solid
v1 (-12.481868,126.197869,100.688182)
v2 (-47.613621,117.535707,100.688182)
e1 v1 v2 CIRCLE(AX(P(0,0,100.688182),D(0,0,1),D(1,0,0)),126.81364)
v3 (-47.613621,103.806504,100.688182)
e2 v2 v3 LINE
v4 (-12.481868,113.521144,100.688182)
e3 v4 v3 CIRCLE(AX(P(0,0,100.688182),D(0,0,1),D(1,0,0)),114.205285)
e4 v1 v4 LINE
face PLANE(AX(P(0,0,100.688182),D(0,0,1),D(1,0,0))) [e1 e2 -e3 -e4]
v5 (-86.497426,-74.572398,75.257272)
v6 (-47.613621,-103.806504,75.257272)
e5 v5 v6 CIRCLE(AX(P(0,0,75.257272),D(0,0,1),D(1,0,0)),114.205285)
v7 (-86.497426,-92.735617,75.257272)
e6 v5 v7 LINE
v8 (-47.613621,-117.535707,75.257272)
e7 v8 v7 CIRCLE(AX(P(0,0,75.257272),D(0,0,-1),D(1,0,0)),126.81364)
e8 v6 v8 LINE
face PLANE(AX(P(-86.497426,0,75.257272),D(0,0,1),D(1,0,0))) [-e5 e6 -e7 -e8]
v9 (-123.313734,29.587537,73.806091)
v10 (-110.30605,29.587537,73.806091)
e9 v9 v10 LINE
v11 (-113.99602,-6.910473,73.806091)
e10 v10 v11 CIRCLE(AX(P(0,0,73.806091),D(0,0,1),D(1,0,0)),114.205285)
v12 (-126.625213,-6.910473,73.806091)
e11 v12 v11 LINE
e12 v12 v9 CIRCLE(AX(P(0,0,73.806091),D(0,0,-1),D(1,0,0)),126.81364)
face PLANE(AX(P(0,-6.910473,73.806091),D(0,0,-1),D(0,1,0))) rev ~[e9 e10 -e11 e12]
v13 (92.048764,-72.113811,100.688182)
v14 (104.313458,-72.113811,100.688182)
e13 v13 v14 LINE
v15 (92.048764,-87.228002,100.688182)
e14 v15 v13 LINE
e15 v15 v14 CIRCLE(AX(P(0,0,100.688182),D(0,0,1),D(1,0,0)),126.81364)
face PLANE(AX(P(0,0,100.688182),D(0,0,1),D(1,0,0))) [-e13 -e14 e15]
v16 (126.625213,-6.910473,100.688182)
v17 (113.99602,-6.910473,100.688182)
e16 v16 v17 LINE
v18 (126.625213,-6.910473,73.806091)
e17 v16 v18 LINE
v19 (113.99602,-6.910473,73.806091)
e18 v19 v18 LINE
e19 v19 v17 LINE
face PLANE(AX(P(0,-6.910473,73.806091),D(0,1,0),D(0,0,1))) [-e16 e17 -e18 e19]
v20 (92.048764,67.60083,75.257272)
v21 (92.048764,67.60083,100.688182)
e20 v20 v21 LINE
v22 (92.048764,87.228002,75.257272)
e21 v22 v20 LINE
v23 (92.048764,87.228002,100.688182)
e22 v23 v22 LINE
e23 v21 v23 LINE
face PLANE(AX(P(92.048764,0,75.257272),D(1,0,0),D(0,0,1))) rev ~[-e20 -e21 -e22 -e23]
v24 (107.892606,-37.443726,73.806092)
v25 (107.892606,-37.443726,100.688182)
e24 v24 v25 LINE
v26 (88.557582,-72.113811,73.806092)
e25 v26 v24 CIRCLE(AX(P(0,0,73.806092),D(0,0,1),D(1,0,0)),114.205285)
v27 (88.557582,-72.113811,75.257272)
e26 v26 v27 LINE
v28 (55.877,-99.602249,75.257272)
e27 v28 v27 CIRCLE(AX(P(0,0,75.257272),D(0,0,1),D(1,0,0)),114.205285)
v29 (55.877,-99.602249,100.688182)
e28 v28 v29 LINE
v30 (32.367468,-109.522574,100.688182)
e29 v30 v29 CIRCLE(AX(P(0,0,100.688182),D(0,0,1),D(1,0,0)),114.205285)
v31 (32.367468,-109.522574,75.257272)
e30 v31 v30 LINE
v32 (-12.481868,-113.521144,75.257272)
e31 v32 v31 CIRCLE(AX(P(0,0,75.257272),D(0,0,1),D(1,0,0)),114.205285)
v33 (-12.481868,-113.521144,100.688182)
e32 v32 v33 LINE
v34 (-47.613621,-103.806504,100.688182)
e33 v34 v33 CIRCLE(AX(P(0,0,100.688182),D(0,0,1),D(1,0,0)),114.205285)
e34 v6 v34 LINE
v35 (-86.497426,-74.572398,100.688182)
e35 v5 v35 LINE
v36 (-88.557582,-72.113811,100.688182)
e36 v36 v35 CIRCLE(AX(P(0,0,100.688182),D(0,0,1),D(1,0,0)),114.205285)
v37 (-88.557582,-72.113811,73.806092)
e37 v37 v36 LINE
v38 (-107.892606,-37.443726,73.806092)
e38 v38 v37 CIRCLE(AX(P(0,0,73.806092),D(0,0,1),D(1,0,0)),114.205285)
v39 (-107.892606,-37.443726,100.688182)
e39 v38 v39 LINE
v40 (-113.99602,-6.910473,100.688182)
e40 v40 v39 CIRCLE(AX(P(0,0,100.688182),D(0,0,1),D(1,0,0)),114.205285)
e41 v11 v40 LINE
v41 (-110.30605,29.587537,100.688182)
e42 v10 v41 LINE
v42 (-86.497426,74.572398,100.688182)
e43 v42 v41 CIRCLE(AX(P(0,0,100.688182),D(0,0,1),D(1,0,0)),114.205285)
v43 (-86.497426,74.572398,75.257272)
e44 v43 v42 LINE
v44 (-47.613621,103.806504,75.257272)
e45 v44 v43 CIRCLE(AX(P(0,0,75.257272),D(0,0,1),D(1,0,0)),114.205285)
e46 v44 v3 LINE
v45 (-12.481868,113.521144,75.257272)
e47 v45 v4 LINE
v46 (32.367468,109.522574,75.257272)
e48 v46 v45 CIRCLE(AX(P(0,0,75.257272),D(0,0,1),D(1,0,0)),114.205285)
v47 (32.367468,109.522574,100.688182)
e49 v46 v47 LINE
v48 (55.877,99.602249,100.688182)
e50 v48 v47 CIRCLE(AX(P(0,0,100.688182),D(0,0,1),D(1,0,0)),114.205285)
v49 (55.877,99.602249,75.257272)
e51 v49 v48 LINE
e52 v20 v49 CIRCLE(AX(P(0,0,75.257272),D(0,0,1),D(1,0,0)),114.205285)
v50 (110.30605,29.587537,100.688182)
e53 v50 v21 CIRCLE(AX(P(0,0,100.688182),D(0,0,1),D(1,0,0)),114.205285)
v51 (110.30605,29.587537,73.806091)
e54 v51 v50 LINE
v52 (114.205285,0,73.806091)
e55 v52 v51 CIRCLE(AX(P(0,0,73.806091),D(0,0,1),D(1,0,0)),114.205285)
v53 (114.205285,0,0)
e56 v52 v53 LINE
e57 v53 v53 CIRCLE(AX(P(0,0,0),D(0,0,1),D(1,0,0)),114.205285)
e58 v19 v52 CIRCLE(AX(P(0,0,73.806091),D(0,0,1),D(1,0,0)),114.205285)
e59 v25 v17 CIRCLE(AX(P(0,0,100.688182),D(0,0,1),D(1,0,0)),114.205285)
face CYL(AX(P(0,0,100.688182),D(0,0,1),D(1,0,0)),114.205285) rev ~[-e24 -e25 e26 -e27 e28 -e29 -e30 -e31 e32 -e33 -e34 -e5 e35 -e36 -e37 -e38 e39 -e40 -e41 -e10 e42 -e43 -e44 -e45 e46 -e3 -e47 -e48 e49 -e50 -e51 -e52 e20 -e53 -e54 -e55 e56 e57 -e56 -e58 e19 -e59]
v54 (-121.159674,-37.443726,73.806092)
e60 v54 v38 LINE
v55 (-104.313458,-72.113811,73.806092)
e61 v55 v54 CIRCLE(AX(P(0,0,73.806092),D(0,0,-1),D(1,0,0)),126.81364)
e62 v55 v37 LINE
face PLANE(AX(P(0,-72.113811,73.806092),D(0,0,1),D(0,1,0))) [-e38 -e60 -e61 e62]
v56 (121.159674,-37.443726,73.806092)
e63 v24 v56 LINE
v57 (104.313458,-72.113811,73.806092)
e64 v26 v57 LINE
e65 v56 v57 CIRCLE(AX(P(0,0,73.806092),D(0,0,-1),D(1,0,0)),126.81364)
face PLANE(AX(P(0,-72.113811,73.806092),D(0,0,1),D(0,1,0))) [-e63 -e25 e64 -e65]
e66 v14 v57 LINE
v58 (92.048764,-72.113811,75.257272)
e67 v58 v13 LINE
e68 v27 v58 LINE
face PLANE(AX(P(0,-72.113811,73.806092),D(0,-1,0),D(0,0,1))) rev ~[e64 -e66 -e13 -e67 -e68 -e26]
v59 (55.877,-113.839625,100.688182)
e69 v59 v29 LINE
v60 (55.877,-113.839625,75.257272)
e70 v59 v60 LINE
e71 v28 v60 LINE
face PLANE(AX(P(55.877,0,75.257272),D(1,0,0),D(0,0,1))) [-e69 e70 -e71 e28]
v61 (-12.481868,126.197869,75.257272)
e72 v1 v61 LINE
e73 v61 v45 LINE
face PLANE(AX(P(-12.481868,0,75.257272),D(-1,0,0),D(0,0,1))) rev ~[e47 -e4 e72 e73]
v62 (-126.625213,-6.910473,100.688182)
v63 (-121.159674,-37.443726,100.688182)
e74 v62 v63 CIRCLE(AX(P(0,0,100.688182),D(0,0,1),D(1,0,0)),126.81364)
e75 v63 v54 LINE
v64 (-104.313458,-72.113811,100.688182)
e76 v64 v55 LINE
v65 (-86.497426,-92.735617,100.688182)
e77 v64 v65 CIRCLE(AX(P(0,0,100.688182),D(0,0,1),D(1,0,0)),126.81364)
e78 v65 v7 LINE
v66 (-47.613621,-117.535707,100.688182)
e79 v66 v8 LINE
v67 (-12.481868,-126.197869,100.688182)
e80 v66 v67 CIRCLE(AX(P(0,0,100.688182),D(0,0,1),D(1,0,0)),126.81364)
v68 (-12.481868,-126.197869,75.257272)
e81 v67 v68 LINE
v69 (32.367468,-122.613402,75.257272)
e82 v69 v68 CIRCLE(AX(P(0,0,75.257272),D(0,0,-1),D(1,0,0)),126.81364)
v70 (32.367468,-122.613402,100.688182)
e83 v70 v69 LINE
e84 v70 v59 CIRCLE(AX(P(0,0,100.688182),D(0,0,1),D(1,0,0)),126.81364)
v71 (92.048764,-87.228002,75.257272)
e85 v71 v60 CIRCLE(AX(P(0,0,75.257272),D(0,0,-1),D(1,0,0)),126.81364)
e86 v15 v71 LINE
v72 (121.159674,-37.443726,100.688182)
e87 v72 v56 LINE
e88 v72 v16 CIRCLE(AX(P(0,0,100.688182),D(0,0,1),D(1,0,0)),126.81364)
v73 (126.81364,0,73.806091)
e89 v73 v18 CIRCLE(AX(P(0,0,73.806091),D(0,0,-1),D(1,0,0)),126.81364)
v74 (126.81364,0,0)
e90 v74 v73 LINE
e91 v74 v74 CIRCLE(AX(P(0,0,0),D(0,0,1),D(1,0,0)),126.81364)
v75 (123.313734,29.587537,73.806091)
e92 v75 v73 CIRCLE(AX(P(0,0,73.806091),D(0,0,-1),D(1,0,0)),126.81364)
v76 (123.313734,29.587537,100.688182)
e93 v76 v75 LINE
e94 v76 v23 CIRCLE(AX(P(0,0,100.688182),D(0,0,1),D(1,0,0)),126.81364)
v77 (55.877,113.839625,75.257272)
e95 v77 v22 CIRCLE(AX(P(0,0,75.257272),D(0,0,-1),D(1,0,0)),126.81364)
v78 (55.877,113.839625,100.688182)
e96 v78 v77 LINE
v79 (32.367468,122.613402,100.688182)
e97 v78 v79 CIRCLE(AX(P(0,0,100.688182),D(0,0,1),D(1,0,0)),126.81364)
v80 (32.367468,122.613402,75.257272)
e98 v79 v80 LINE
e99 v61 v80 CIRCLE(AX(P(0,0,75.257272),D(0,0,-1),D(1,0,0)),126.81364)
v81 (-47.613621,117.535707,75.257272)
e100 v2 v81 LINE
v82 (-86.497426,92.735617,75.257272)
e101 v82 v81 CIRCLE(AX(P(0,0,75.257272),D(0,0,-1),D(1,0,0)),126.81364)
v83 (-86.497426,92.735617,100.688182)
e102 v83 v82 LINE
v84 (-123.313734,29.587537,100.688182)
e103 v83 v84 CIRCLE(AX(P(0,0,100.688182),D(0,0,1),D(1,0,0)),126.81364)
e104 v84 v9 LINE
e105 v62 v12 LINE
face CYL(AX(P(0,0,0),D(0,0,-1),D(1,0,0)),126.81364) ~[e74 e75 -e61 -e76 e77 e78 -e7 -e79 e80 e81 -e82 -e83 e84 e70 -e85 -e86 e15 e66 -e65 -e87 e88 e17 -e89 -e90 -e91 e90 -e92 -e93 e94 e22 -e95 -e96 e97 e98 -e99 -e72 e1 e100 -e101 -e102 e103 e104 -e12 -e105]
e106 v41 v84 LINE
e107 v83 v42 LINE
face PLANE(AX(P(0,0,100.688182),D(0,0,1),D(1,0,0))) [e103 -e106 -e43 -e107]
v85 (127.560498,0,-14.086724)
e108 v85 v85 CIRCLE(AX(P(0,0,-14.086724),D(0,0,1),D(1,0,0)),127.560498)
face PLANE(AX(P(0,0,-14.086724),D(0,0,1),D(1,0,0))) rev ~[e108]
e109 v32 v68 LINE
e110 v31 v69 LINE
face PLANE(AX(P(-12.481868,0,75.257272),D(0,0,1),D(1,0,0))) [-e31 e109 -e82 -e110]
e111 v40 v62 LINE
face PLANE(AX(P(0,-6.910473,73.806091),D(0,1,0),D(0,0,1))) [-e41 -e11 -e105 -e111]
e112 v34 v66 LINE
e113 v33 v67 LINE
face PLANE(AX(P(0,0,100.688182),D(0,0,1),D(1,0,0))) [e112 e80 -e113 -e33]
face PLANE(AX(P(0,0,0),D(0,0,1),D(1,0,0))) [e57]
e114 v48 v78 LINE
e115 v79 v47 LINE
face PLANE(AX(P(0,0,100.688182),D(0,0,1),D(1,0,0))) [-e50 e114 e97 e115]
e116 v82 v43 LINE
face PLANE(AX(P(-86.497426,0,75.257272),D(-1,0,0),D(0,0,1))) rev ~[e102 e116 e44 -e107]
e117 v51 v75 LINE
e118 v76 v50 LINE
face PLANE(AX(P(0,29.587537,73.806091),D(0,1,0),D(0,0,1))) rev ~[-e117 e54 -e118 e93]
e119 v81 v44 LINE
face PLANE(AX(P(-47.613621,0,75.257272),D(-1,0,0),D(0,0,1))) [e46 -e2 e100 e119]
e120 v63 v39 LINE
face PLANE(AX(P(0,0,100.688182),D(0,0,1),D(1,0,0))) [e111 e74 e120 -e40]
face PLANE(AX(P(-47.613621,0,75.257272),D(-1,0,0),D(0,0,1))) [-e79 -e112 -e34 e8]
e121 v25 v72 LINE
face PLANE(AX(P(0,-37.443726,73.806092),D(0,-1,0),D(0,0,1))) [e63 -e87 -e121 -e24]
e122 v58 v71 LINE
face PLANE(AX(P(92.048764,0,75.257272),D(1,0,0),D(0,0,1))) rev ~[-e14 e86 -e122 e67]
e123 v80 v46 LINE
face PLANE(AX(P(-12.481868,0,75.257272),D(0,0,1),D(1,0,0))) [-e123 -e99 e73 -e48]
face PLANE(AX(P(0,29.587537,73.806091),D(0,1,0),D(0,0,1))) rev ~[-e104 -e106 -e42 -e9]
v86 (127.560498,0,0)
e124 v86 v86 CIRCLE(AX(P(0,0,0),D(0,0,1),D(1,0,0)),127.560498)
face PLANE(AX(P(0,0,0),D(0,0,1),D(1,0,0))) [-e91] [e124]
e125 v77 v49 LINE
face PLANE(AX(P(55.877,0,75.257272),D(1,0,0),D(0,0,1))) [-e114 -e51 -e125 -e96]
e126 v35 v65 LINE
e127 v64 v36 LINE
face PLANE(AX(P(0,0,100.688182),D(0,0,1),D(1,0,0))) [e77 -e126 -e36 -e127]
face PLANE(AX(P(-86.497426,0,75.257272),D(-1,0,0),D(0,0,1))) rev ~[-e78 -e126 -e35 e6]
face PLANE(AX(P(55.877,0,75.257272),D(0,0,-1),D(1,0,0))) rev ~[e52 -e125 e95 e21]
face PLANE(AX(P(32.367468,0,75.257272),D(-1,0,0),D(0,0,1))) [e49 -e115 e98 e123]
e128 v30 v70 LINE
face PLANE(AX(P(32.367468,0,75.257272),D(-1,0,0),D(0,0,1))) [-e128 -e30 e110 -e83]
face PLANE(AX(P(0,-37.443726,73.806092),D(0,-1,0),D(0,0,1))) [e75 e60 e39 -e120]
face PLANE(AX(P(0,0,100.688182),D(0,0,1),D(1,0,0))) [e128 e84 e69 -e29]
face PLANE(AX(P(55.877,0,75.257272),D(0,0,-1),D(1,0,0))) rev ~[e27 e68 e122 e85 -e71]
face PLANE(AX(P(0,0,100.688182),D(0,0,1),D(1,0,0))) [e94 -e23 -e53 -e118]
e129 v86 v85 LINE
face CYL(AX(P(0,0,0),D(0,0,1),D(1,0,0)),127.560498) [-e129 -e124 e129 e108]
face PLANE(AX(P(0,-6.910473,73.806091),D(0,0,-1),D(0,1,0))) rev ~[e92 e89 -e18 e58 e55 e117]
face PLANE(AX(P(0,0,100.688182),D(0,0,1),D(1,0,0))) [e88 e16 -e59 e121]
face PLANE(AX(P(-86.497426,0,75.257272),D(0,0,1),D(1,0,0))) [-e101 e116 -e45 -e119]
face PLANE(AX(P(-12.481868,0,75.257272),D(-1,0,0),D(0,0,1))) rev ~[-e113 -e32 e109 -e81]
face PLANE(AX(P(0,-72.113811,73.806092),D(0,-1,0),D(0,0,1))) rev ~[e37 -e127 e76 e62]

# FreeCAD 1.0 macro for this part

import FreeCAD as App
import Part
import Sketcher

V = App.Vector
Q = App.Units.Quantity

doc = App.newDocument("Part")
body = doc.addObject("PartDesign::Body", "Body")

# Sketch on XY plane
sketch1 = doc.addObject("Sketcher::SketchObject", "Sketch")
body.addObject(sketch1)
sketch1.AttachmentSupport = (doc.XY_Plane, [""])
sketch1.MapMode = "FlatFace"
sketch1.addGeometry(Part.Circle(V(0, 0, 0), V(0, 0, 1), 127), False)
sketch1.addConstraint([
    Sketcher.Constraint("Coincident", 0, 3, -1, 1),
    Sketcher.Constraint("Diameter", 0, Q("253.62728 mm")),
])
pad1 = doc.addObject("PartDesign::Pad", "Pad")
body.addObject(pad1)
pad1.Profile = sketch1
pad1.Length = 100.688182

# Sketch on XY plane
sketch2 = doc.addObject("Sketcher::SketchObject", "Sketch001")
body.addObject(sketch2)
sketch2.AttachmentSupport = (doc.XY_Plane, [""])
sketch2.MapMode = "FlatFace"
sketch2.AttachmentOffset = App.Placement(V(0, 0, 100.688182), App.Rotation())
sketch2.addGeometry(Part.Circle(V(0, 0, 0), V(0, 0, 1), 114), False)
sketch2.addConstraint([
    Sketcher.Constraint("Coincident", 0, 3, -1, 1),
    Sketcher.Constraint("Diameter", 0, Q("228.41057 mm")),
])
pocket1 = doc.addObject("PartDesign::Pocket", "Pocket")
body.addObject(pocket1)
pocket1.Profile = sketch2
pocket1.Length = 132.476546

# Sketch on YZ plane
sketch3 = doc.addObject("Sketcher::SketchObject", "Sketch002")
body.addObject(sketch3)
sketch3.AttachmentSupport = (doc.YZ_Plane, [""])
sketch3.MapMode = "FlatFace"
sketch3.addGeometry([
    Part.LineSegment(V(-72, 101, 0), V(-72, 74, 0)),  # 0
    Part.LineSegment(V(-72, 74, 0), V(-37, 74, 0)),  # 1
    Part.LineSegment(V(-37, 74, 0), V(-37, 101, 0)),  # 2
    Part.LineSegment(V(-37, 101, 0), V(-72, 101, 0)),  # 3
    Part.LineSegment(V(-7, 102, 0), V(-7, 74, 0)),  # 4
    Part.LineSegment(V(-7, 74, 0), V(30, 74, 0)),  # 5
    Part.LineSegment(V(30, 74, 0), V(30, 102, 0)),  # 6
    Part.LineSegment(V(30, 102, 0), V(-7, 102, 0)),  # 7
], False)
sketch3.addConstraint([
    Sketcher.Constraint("Coincident", 0, 2, 1, 1),
    Sketcher.Constraint("Coincident", 1, 2, 2, 1),
    Sketcher.Constraint("Coincident", 2, 2, 3, 1),
    Sketcher.Constraint("Coincident", 3, 2, 0, 1),
    Sketcher.Constraint("Coincident", 4, 2, 5, 1),
    Sketcher.Constraint("Coincident", 5, 2, 6, 1),
    Sketcher.Constraint("Coincident", 6, 2, 7, 1),
    Sketcher.Constraint("Coincident", 7, 2, 4, 1),
    Sketcher.Constraint("Vertical", 0),
    Sketcher.Constraint("Horizontal", 1),
    Sketcher.Constraint("Vertical", 2),
    Sketcher.Constraint("Horizontal", 3),
    Sketcher.Constraint("Vertical", 4),
    Sketcher.Constraint("Horizontal", 5),
    Sketcher.Constraint("Vertical", 6),
    Sketcher.Constraint("Horizontal", 7),
    Sketcher.Constraint("Horizontal", 1, 2, 4, 2),
    Sketcher.Constraint("DistanceX", 5, 1, 5, 2, Q("36.49801 mm")),
    Sketcher.Constraint("DistanceY", 0, 2, 0, 1, Q("27.337872 mm")),
    Sketcher.Constraint("DistanceX", 1, 1, 1, 2, Q("34.670085 mm")),
    Sketcher.Constraint("DistanceY", 4, 2, 4, 1, Q("28.232135 mm")),
    Sketcher.Constraint("DistanceX", 0, 2, -1, 1, Q("72.113811 mm")),
    Sketcher.Constraint("DistanceY", -1, 1, 4, 2, Q("73.806091 mm")),
    Sketcher.Constraint("DistanceX", 0, 2, 4, 2, Q("65.203339 mm")),
])
pocket2 = doc.addObject("PartDesign::Pocket", "Pocket001")
body.addObject(pocket2)
pocket2.Profile = sketch3
pocket2.Length = 326.559082
pocket2.Midplane = True

# Sketch on XZ plane
sketch4 = doc.addObject("Sketcher::SketchObject", "Sketch003")
body.addObject(sketch4)
sketch4.AttachmentSupport = (doc.XZ_Plane, [""])
sketch4.MapMode = "FlatFace"
sketch4.addGeometry([
    Part.LineSegment(V(-86, 105, 0), V(-86, 75, 0)),  # 0
    Part.LineSegment(V(-86, 75, 0), V(-48, 75, 0)),  # 1
    Part.LineSegment(V(-48, 75, 0), V(-48, 105, 0)),  # 2
    Part.LineSegment(V(-48, 105, 0), V(-86, 105, 0)),  # 3
    Part.LineSegment(V(-12, 105, 0), V(-12, 75, 0)),  # 4
    Part.LineSegment(V(-12, 75, 0), V(32, 75, 0)),  # 5
    Part.LineSegment(V(32, 75, 0), V(32, 105, 0)),  # 6
    Part.LineSegment(V(32, 105, 0), V(-12, 105, 0)),  # 7
    Part.LineSegment(V(56, 105, 0), V(56, 75, 0)),  # 8
    Part.LineSegment(V(56, 75, 0), V(92, 75, 0)),  # 9
    Part.LineSegment(V(92, 75, 0), V(92, 105, 0)),  # 10
    Part.LineSegment(V(92, 105, 0), V(56, 105, 0)),  # 11
], False)
sketch4.addConstraint([
    Sketcher.Constraint("Coincident", 0, 2, 1, 1),
    Sketcher.Constraint("Coincident", 1, 2, 2, 1),
    Sketcher.Constraint("Coincident", 2, 2, 3, 1),
    Sketcher.Constraint("Coincident", 3, 2, 0, 1),
    Sketcher.Constraint("Coincident", 4, 2, 5, 1),
    Sketcher.Constraint("Coincident", 5, 2, 6, 1),
    Sketcher.Constraint("Coincident", 6, 2, 7, 1),
    Sketcher.Constraint("Coincident", 7, 2, 4, 1),
    Sketcher.Constraint("Coincident", 8, 2, 9, 1),
    Sketcher.Constraint("Coincident", 9, 2, 10, 1),
    Sketcher.Constraint("Coincident", 10, 2, 11, 1),
    Sketcher.Constraint("Coincident", 11, 2, 8, 1),
    Sketcher.Constraint("Vertical", 0),
    Sketcher.Constraint("Horizontal", 1),
    Sketcher.Constraint("Vertical", 2),
    Sketcher.Constraint("Horizontal", 3),
    Sketcher.Constraint("Vertical", 4),
    Sketcher.Constraint("Horizontal", 5),
    Sketcher.Constraint("Vertical", 6),
    Sketcher.Constraint("Horizontal", 7),
    Sketcher.Constraint("Vertical", 8),
    Sketcher.Constraint("Horizontal", 9),
    Sketcher.Constraint("Vertical", 10),
    Sketcher.Constraint("Horizontal", 11),
    Sketcher.Constraint("Horizontal", 1, 2, 4, 2),
    Sketcher.Constraint("Horizontal", 3, 2, 6, 2),
    Sketcher.Constraint("Horizontal", 5, 2, 8, 2),
    Sketcher.Constraint("Horizontal", 7, 2, 10, 2),
    Sketcher.Constraint("DistanceX", -1, 1, 8, 2, Q("55.877 mm")),
    Sketcher.Constraint("DistanceX", 1, 1, 1, 2, Q("38.883805 mm")),
    Sketcher.Constraint("DistanceX", 5, 1, 5, 2, Q("44.849336 mm")),
    Sketcher.Constraint("DistanceX", 9, 1, 9, 2, Q("36.171764 mm")),
    Sketcher.Constraint("DistanceY", 0, 2, 0, 1, Q("29.987096 mm")),
    Sketcher.Constraint("DistanceY", -1, 1, 0, 2, Q("75.257272 mm")),
    Sketcher.Constraint("DistanceX", 1, 2, -1, 1, Q("47.613621 mm")),
    Sketcher.Constraint("DistanceX", -1, 1, 5, 2, Q("32.367468 mm")),
])
pocket3 = doc.addObject("PartDesign::Pocket", "Pocket002")
body.addObject(pocket3)
pocket3.Profile = sketch4
pocket3.Length = 425.491496
pocket3.Midplane = True

# Sketch on XY plane
sketch5 = doc.addObject("Sketcher::SketchObject", "Sketch004")
body.addObject(sketch5)
sketch5.AttachmentSupport = (doc.XY_Plane, [""])
sketch5.MapMode = "FlatFace"
sketch5.addGeometry(Part.Circle(V(0, 0, 0), V(0, 0, 1), 128), False)
sketch5.addConstraint([
    Sketcher.Constraint("Coincident", 0, 3, -1, 1),
    Sketcher.Constraint("Diameter", 0, Q("255.120996 mm")),
])
pad2 = doc.addObject("PartDesign::Pad", "Pad001")
body.addObject(pad2)
pad2.Profile = sketch5
pad2.Length = 14.086724
pad2.Reversed = True
body2 = doc.addObject("PartDesign::Body", "Body001")

# Sketch on XZ plane
sketch6 = doc.addObject("Sketcher::SketchObject", "Sketch005")
body2.addObject(sketch6)
sketch6.AttachmentSupport = (doc.getObject("XZ_Plane001"), [""])
sketch6.MapMode = "FlatFace"
sketch6.addGeometry([
    Part.LineSegment(V(-74, 75, 0), V(-74, 58, 0)),
    Part.LineSegment(V(-74, 58, 0), V(-55, 58, 0)),
    Part.LineSegment(V(-55, 58, 0), V(-55, 75, 0)),
    Part.LineSegment(V(-55, 75, 0), V(-74, 75, 0)),
], False)
sketch6.addConstraint([
    Sketcher.Constraint("Coincident", 0, 2, 1, 1),
    Sketcher.Constraint("Coincident", 1, 2, 2, 1),
    Sketcher.Constraint("Coincident", 2, 2, 3, 1),
    Sketcher.Constraint("Coincident", 3, 2, 0, 1),
    Sketcher.Constraint("Vertical", 0),
    Sketcher.Constraint("Horizontal", 1),
    Sketcher.Constraint("Vertical", 2),
    Sketcher.Constraint("Horizontal", 3),
    Sketcher.Constraint("DistanceY", 0, 2, 0, 1, Q("17.48392 mm")),
    Sketcher.Constraint("DistanceX", 0, 2, -1, 1, Q("74.286401 mm")),
    Sketcher.Constraint("DistanceX", 1, 1, 1, 2, Q("18.965825 mm")),
    Sketcher.Constraint("DistanceY", -1, 1, 0, 2, Q("57.547808 mm")),
])
pad3 = doc.addObject("PartDesign::Pad", "Pad002")
body2.addObject(pad3)
pad3.Profile = sketch6
pad3.Length = 25
body2.Visibility = False

doc.recompute()
